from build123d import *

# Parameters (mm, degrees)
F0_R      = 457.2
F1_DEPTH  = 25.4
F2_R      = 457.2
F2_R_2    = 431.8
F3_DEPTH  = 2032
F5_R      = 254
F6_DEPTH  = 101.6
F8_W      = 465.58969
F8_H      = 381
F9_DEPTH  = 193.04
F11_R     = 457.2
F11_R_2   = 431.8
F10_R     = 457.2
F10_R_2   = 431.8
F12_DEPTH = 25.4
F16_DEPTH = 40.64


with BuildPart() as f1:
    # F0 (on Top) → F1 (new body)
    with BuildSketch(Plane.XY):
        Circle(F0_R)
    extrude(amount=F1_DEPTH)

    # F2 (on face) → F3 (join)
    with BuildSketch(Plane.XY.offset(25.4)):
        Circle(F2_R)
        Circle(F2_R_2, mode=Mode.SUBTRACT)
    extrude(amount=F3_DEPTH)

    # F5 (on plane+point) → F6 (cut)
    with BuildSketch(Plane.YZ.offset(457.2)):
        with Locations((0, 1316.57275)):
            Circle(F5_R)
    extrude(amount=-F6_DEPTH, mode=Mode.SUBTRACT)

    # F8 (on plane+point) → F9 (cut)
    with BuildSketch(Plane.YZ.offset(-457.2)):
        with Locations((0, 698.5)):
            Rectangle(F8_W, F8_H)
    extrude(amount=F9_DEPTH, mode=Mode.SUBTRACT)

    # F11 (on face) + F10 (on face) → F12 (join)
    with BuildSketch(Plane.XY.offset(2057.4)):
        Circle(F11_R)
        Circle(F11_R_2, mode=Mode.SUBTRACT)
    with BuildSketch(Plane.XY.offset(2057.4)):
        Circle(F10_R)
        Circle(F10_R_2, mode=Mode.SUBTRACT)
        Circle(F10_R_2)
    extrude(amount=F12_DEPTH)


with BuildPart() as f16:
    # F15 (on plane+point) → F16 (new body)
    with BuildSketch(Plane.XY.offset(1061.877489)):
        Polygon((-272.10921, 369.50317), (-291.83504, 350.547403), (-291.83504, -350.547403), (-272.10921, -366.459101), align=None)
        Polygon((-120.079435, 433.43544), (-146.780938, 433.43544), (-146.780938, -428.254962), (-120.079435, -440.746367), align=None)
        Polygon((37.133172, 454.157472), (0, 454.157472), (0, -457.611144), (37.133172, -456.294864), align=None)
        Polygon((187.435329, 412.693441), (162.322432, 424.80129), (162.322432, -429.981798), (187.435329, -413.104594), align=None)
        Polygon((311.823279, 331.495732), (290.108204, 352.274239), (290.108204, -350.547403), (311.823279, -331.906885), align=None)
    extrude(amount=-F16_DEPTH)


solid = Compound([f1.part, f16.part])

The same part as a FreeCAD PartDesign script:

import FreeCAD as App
import Part
import Sketcher

V = App.Vector
Q = App.Units.Quantity

doc = App.newDocument("Part")
body = doc.addObject("PartDesign::Body", "Body")

# Sketch on XY plane
sketch1 = body.newObject("Sketcher::SketchObject", "Sketch")
sketch1.AttachmentSupport = (doc.getObject("XY_Plane"), [""])
sketch1.MapMode = "FlatFace"
sketch1.addGeometry(Part.Circle(V(0, 0, 0), V(0, 0, 1), 457.2), False)
sketch1.addConstraint(Sketcher.Constraint("Coincident", 0, 3, -1, 1))
sketch1.addConstraint(Sketcher.Constraint("Diameter", 0, Q("36 in")))
pad1 = body.newObject("PartDesign::Pad", "Pad")
pad1.Profile = sketch1
pad1.Length = Q("1 in")

# Sketch on XY plane
sketch2 = body.newObject("Sketcher::SketchObject", "Sketch001")
sketch2.AttachmentSupport = (doc.getObject("XY_Plane"), [""])
sketch2.MapMode = "FlatFace"
sketch2.AttachmentOffset = App.Placement(V(0, 0, 1 * 25.4), App.Rotation())
sketch2.addGeometry(Part.Circle(V(0, 0, 0), V(0, 0, 1), 457.2), False)
sketch2.addGeometry(Part.Circle(V(0, 0, 0), V(0, 0, 1), 431.8), False)
sketch2.addConstraint(Sketcher.Constraint("Coincident", 0, 3, -1, 1))
sketch2.addConstraint(Sketcher.Constraint("Coincident", 1, 3, -1, 1))
sketch2.addConstraint(Sketcher.Constraint("Diameter", 0, Q("36 in")))
sketch2.addConstraint(Sketcher.Constraint("Diameter", 1, Q("34 in")))
pad2 = body.newObject("PartDesign::Pad", "Pad001")
pad2.Profile = sketch2
pad2.Length = Q("80 in")

# Sketch on YZ plane
sketch3 = body.newObject("Sketcher::SketchObject", "Sketch002")
sketch3.AttachmentSupport = (doc.getObject("YZ_Plane"), [""])
sketch3.MapMode = "FlatFace"
sketch3.AttachmentOffset = App.Placement(V(0, 0, 18 * 25.4), App.Rotation())
sketch3.addGeometry(Part.Circle(V(0, 1316.57275, 0), V(0, 0, 1), 254), False)
sketch3.addConstraint(Sketcher.Constraint("PointOnObject", 0, 3, -2))
sketch3.addConstraint(Sketcher.Constraint("Diameter", 0, Q("20 in")))
sketch3.addConstraint(Sketcher.Constraint("DistanceY", -1, 1, 0, 3, 1316.57275))
pocket1 = body.newObject("PartDesign::Pocket", "Pocket")
pocket1.Profile = sketch3
pocket1.Length = Q("4 in")

# Sketch on YZ plane
sketch4 = body.newObject("Sketcher::SketchObject", "Sketch003")
sketch4.AttachmentSupport = (doc.getObject("YZ_Plane"), [""])
sketch4.MapMode = "FlatFace"
sketch4.AttachmentOffset = App.Placement(V(0, 0, -18 * 25.4), App.Rotation())
sketch4.addGeometry(Part.LineSegment(V(-232.794845, 889, 0), V(-232.794845, 508, 0)), False)
sketch4.addGeometry(Part.LineSegment(V(-232.794845, 508, 0), V(232.794845, 508, 0)), False)
sketch4.addGeometry(Part.LineSegment(V(232.794845, 508, 0), V(232.794845, 889, 0)), False)
sketch4.addGeometry(Part.LineSegment(V(232.794845, 889, 0), V(-232.794845, 889, 0)), False)
sketch4.addConstraint(Sketcher.Constraint("Coincident", 0, 2, 1, 1))
sketch4.addConstraint(Sketcher.Constraint("Coincident", 1, 2, 2, 1))
sketch4.addConstraint(Sketcher.Constraint("Coincident", 2, 2, 3, 1))
sketch4.addConstraint(Sketcher.Constraint("Coincident", 3, 2, 0, 1))
sketch4.addConstraint(Sketcher.Constraint("Vertical", 0))
sketch4.addConstraint(Sketcher.Constraint("Horizontal", 1))
sketch4.addConstraint(Sketcher.Constraint("Vertical", 2))
sketch4.addConstraint(Sketcher.Constraint("Horizontal", 3))
sketch4.addConstraint(Sketcher.Constraint("DistanceY", 0, 2, 0, 1, Q("15 in")))
sketch4.addConstraint(Sketcher.Constraint("DistanceY", -1, 1, 0, 2, Q("20 in")))
sketch4.addConstraint(Sketcher.Constraint("DistanceX", 1, 1, 1, 2, 465.58969))
sketch4.addConstraint(Sketcher.Constraint("DistanceX", 0, 2, -1, 1, 232.794845))
pocket2 = body.newObject("PartDesign::Pocket", "Pocket001")
pocket2.Profile = sketch4
pocket2.Length = Q("7.6 in")
pocket2.Reversed = True

# Sketch on XY plane
sketch5 = body.newObject("Sketcher::SketchObject", "Sketch004")
sketch5.AttachmentSupport = (doc.getObject("XY_Plane"), [""])
sketch5.MapMode = "FlatFace"
sketch5.AttachmentOffset = App.Placement(V(0, 0, 81 * 25.4), App.Rotation())
sketch5.addGeometry(Part.Circle(V(0, 0, 0), V(0, 0, 1), 457.2), False)
sketch5.addConstraint(Sketcher.Constraint("Coincident", 0, 3, -1, 1))
sketch5.addConstraint(Sketcher.Constraint("Diameter", 0, Q("36 in")))
pad3 = body.newObject("PartDesign::Pad", "Pad002")
pad3.Profile = sketch5
pad3.Length = Q("1 in")
body2 = doc.addObject("PartDesign::Body", "Body001")
body2.AllowCompound = True

# Sketch on XY plane
sketch6 = body2.newObject("Sketcher::SketchObject", "Sketch005")
sketch6.AttachmentSupport = (doc.getObject("XY_Plane001"), [""])
sketch6.MapMode = "FlatFace"
sketch6.AttachmentOffset = App.Placement(V(0, 0, 1061.877489), App.Rotation())
sketch6.addGeometry(Part.LineSegment(V(-272.10921, 369.50317, 0), V(-291.83504, 350.547403, 0)), False)
sketch6.addGeometry(Part.LineSegment(V(-291.83504, 350.547403, 0), V(-291.83504, -350.547403, 0)), False)
sketch6.addGeometry(Part.LineSegment(V(-291.83504, -350.547403, 0), V(-272.10921, -366.459101, 0)), False)
sketch6.addGeometry(Part.LineSegment(V(-272.10921, -366.459101, 0), V(-272.10921, 369.50317, 0)), False)
sketch6.addGeometry(Part.LineSegment(V(-120.079435, 433.43544, 0), V(-146.780938, 433.43544, 0)), False)
sketch6.addGeometry(Part.LineSegment(V(-146.780938, 433.43544, 0), V(-146.780938, -428.254962, 0)), False)
sketch6.addGeometry(Part.LineSegment(V(-146.780938, -428.254962, 0), V(-120.079435, -440.746367, 0)), False)
sketch6.addGeometry(Part.LineSegment(V(-120.079435, -440.746367, 0), V(-120.079435, 433.43544, 0)), False)
sketch6.addGeometry(Part.LineSegment(V(37.133172, 454.157472, 0), V(0, 454.157472, 0)), False)
sketch6.addGeometry(Part.LineSegment(V(0, 454.157472, 0), V(0, -457.611144, 0)), False)
sketch6.addGeometry(Part.LineSegment(V(0, -457.611144, 0), V(37.133172, -456.294864, 0)), False)
sketch6.addGeometry(Part.LineSegment(V(37.133172, -456.294864, 0), V(37.133172, 454.157472, 0)), False)
sketch6.addGeometry(Part.LineSegment(V(187.435329, 412.693441, 0), V(162.322432, 424.80129, 0)), False)
sketch6.addGeometry(Part.LineSegment(V(162.322432, 424.80129, 0), V(162.322432, -429.981798, 0)), False)
sketch6.addGeometry(Part.LineSegment(V(162.322432, -429.981798, 0), V(187.435329, -413.104594, 0)), False)
sketch6.addGeometry(Part.LineSegment(V(187.435329, -413.104594, 0), V(187.435329, 412.693441, 0)), False)
sketch6.addGeometry(Part.LineSegment(V(311.823279, 331.495732, 0), V(290.108204, 352.274239, 0)), False)
sketch6.addGeometry(Part.LineSegment(V(290.108204, 352.274239, 0), V(290.108204, -350.547403, 0)), False)
sketch6.addGeometry(Part.LineSegment(V(290.108204, -350.547403, 0), V(311.823279, -331.906885, 0)), False)
sketch6.addGeometry(Part.LineSegment(V(311.823279, -331.906885, 0), V(311.823279, 331.495732, 0)), False)
sketch6.addConstraint(Sketcher.Constraint("Coincident", 0, 2, 1, 1))
sketch6.addConstraint(Sketcher.Constraint("Coincident", 1, 2, 2, 1))
sketch6.addConstraint(Sketcher.Constraint("Coincident", 2, 2, 3, 1))
sketch6.addConstraint(Sketcher.Constraint("Coincident", 3, 2, 0, 1))
sketch6.addConstraint(Sketcher.Constraint("Coincident", 4, 2, 5, 1))
sketch6.addConstraint(Sketcher.Constraint("Coincident", 5, 2, 6, 1))
sketch6.addConstraint(Sketcher.Constraint("Coincident", 6, 2, 7, 1))
sketch6.addConstraint(Sketcher.Constraint("Coincident", 7, 2, 4, 1))
sketch6.addConstraint(Sketcher.Constraint("Coincident", 8, 2, 9, 1))
sketch6.addConstraint(Sketcher.Constraint("Coincident", 9, 2, 10, 1))
sketch6.addConstraint(Sketcher.Constraint("Coincident", 10, 2, 11, 1))
sketch6.addConstraint(Sketcher.Constraint("Coincident", 11, 2, 8, 1))
sketch6.addConstraint(Sketcher.Constraint("Coincident", 12, 2, 13, 1))
sketch6.addConstraint(Sketcher.Constraint("Coincident", 13, 2, 14, 1))
sketch6.addConstraint(Sketcher.Constraint("Coincident", 14, 2, 15, 1))
sketch6.addConstraint(Sketcher.Constraint("Coincident", 15, 2, 12, 1))
sketch6.addConstraint(Sketcher.Constraint("Coincident", 16, 2, 17, 1))
sketch6.addConstraint(Sketcher.Constraint("Coincident", 17, 2, 18, 1))
sketch6.addConstraint(Sketcher.Constraint("Coincident", 18, 2, 19, 1))
sketch6.addConstraint(Sketcher.Constraint("Coincident", 19, 2, 16, 1))
sketch6.addConstraint(Sketcher.Constraint("Vertical", 1))
sketch6.addConstraint(Sketcher.Constraint("Vertical", 3))
sketch6.addConstraint(Sketcher.Constraint("Horizontal", 4))
sketch6.addConstraint(Sketcher.Constraint("Vertical", 5))
sketch6.addConstraint(Sketcher.Constraint("Vertical", 7))
sketch6.addConstraint(Sketcher.Constraint("Horizontal", 8))
sketch6.addConstraint(Sketcher.Constraint("Vertical", 9))
sketch6.addConstraint(Sketcher.Constraint("Vertical", 11))
sketch6.addConstraint(Sketcher.Constraint("Vertical", 13))
sketch6.addConstraint(Sketcher.Constraint("Vertical", 15))
sketch6.addConstraint(Sketcher.Constraint("Vertical", 17))
sketch6.addConstraint(Sketcher.Constraint("Vertical", 19))
sketch6.addConstraint(Sketcher.Constraint("PointOnObject", 8, 2, -2))
sketch6.addConstraint(Sketcher.Constraint("Horizontal", 1, 2, 17, 2))
sketch6.addConstraint(Sketcher.Constraint("DistanceY", 5, 2, 5, 1, 861.690402))
sketch6.addConstraint(Sketcher.Constraint("DistanceY", 18, 2, -1, 1, Q("13.0672002 in")))
sketch6.addConstraint(Sketcher.Constraint("Distance", 6, 29.478899))
sketch6.addConstraint(Sketcher.Constraint("DistanceY", 3, 1, 3, 2, 735.962271))
sketch6.addConstraint(Sketcher.Constraint("DistanceY", 13, 2, 13, 1, 854.783088))
sketch6.addConstraint(Sketcher.Constraint("DistanceY", 17, 2, 17, 1, 702.821642))
sketch6.addConstraint(Sketcher.Constraint("DistanceY", 2, 2, -1, 1, 366.459101))
sketch6.addConstraint(Sketcher.Constraint("DistanceY", 13, 2, -1, 1, 429.981798))
sketch6.addConstraint(Sketcher.Constraint("DistanceY", 2, 2, 1, 2, 15.911698))
sketch6.addConstraint(Sketcher.Constraint("DistanceX", 0, 2, 4, 2, 145.054102))
sketch6.addConstraint(Sketcher.Constraint("DistanceY", 3, 2, 8, 2, 84.654302))
sketch6.addConstraint(Sketcher.Constraint("DistanceY", 15, 2, 7, 2, 20.741999))
sketch6.addConstraint(Sketcher.Constraint("DistanceY", 16, 2, 15, 2, 60.419202))
sketch6.addConstraint(Sketcher.Constraint("Distance", 0, 27.357439))
sketch6.addConstraint(Sketcher.Constraint("Distance", 2, 25.343451))
sketch6.addConstraint(Sketcher.Constraint("Distance", 12, 27.87934))
sketch6.addConstraint(Sketcher.Constraint("Distance", 14, 30.257191))
sketch6.addConstraint(Sketcher.Constraint("Distance", 18, 28.61841))
sketch6.addConstraint(Sketcher.Constraint("DistanceX", 4, 2, 4, 1, 26.701503))
sketch6.addConstraint(Sketcher.Constraint("DistanceX", 8, 2, 8, 1, 37.133172))
sketch6.addConstraint(Sketcher.Constraint("DistanceY", 9, 2, 9, 1, 911.768616))
sketch6.addConstraint(Sketcher.Constraint("DistanceY", 11, 1, 11, 2, 910.452336))
sketch6.addConstraint(Sketcher.Constraint("DistanceY", 19, 1, 19, 2, 663.402617))
sketch6.addConstraint(Sketcher.Constraint("DistanceX", 0, 2, -1, 1, 291.83504))
sketch6.addConstraint(Sketcher.Constraint("DistanceX", -1, 1, 12, 2, 162.322432))
sketch6.addConstraint(Sketcher.Constraint("DistanceX", -1, 1, 18, 2, 311.823279))
pad4 = body2.newObject("PartDesign::Pad", "Pad003")
pad4.Profile = sketch6
pad4.Length = Q("1.6 in")
pad4.Reversed = True

doc.recompute()
